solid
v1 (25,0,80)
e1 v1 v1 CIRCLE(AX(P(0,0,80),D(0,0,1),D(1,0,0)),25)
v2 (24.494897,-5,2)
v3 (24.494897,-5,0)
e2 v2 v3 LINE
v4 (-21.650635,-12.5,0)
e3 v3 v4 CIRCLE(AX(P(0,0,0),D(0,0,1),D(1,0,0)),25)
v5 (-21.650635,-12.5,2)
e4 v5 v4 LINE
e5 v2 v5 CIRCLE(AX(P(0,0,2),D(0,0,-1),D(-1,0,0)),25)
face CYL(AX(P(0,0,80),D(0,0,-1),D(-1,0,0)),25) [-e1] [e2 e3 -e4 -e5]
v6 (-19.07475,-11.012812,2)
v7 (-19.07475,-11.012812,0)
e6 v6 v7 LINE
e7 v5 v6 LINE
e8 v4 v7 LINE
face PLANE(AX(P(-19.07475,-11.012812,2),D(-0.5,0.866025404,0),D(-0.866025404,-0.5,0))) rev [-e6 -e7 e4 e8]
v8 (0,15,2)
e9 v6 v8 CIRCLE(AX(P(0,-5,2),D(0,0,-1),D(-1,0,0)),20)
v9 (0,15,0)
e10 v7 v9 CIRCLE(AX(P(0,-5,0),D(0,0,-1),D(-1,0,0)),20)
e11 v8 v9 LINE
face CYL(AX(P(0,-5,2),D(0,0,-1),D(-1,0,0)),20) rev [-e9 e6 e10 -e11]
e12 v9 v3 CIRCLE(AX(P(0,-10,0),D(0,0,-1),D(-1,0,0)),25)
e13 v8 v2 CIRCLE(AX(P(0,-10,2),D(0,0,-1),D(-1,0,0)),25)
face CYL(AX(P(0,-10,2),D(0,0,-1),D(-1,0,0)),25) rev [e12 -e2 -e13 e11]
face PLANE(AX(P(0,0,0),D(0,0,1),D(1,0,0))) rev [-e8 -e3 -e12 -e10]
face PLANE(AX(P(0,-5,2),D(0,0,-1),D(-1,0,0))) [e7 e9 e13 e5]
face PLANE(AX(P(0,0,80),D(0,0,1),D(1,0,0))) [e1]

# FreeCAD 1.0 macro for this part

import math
import FreeCAD as App
import Part
import Sketcher
from FreeCAD import Vector
Q = App.Units.Quantity

doc = App.newDocument("Part")
body = doc.addObject("PartDesign::Body", "Body")

sketch1 = doc.addObject("Sketcher::SketchObject", "Sketch")
body.addObject(sketch1)
sketch1.AttachmentSupport = (doc.XY_Plane, [""])
sketch1.MapMode = "FlatFace"
sketch1.addGeometry(Part.Circle(Vector(0, 0, 0), Vector(0, 0, 1), 25), False)
sketch1.addConstraint([
    Sketcher.Constraint("Coincident", 0, 3, -1, 1),
    Sketcher.Constraint("Diameter", 0, 50.0),
])
pad1 = doc.addObject("PartDesign::Pad", "Pad")
body.addObject(pad1)
pad1.Profile = sketch1
pad1.Length = 80

sketch2 = doc.addObject("Sketcher::SketchObject", "Sketch001")
body.addObject(sketch2)
sketch2.AttachmentSupport = (doc.XY_Plane, [""])
sketch2.MapMode = "FlatFace"
sketch2.addGeometry([
    Part.LineSegment(Vector(-21.7, -12.5, 0), Vector(-19.1, -11, 0)),
    Part.ArcOfCircle(Part.Circle(Vector(0, -5, 0), Vector(0, 0, 1), 20), math.radians(90), math.radians(197)),
    Part.ArcOfCircle(Part.Circle(Vector(0, -10, 0), Vector(0, 0, 1), 25), math.radians(12), math.radians(90)),
    Part.ArcOfCircle(Part.Circle(Vector(0, 0, 0), Vector(0, 0, 1), 25), math.radians(-150), math.radians(-12)),
], False)
sketch2.addConstraint([
    Sketcher.Constraint("Coincident", 0, 2, 1, 2),
    Sketcher.Constraint("Tangent", 1, 1, 2, 2),
    Sketcher.Constraint("Coincident", 2, 1, 3, 2),
    Sketcher.Constraint("Coincident", 3, 1, 0, 1),
    Sketcher.Constraint("Coincident", 3, 3, -1, 1),
    Sketcher.Constraint("Equal", 2, 3),
    Sketcher.Constraint("PointOnObject", 1, 3, -2),
    Sketcher.Constraint("PointOnObject", 2, 3, -2),
    Sketcher.Constraint("Horizontal", 1, 3, 2, 1),
    Sketcher.Constraint("Radius", 1, 20.0),
    Sketcher.Constraint("Radius", 2, 25.0),
    Sketcher.Constraint("Angle", 0, Q("30 deg")),
    Sketcher.Constraint("DistanceY", 3, 1, -1, 1, 12.5),
])
pocket1 = doc.addObject("PartDesign::Pocket", "Pocket")
body.addObject(pocket1)
pocket1.Profile = sketch2
pocket1.Length = 2
pocket1.Reversed = True

doc.recompute()
